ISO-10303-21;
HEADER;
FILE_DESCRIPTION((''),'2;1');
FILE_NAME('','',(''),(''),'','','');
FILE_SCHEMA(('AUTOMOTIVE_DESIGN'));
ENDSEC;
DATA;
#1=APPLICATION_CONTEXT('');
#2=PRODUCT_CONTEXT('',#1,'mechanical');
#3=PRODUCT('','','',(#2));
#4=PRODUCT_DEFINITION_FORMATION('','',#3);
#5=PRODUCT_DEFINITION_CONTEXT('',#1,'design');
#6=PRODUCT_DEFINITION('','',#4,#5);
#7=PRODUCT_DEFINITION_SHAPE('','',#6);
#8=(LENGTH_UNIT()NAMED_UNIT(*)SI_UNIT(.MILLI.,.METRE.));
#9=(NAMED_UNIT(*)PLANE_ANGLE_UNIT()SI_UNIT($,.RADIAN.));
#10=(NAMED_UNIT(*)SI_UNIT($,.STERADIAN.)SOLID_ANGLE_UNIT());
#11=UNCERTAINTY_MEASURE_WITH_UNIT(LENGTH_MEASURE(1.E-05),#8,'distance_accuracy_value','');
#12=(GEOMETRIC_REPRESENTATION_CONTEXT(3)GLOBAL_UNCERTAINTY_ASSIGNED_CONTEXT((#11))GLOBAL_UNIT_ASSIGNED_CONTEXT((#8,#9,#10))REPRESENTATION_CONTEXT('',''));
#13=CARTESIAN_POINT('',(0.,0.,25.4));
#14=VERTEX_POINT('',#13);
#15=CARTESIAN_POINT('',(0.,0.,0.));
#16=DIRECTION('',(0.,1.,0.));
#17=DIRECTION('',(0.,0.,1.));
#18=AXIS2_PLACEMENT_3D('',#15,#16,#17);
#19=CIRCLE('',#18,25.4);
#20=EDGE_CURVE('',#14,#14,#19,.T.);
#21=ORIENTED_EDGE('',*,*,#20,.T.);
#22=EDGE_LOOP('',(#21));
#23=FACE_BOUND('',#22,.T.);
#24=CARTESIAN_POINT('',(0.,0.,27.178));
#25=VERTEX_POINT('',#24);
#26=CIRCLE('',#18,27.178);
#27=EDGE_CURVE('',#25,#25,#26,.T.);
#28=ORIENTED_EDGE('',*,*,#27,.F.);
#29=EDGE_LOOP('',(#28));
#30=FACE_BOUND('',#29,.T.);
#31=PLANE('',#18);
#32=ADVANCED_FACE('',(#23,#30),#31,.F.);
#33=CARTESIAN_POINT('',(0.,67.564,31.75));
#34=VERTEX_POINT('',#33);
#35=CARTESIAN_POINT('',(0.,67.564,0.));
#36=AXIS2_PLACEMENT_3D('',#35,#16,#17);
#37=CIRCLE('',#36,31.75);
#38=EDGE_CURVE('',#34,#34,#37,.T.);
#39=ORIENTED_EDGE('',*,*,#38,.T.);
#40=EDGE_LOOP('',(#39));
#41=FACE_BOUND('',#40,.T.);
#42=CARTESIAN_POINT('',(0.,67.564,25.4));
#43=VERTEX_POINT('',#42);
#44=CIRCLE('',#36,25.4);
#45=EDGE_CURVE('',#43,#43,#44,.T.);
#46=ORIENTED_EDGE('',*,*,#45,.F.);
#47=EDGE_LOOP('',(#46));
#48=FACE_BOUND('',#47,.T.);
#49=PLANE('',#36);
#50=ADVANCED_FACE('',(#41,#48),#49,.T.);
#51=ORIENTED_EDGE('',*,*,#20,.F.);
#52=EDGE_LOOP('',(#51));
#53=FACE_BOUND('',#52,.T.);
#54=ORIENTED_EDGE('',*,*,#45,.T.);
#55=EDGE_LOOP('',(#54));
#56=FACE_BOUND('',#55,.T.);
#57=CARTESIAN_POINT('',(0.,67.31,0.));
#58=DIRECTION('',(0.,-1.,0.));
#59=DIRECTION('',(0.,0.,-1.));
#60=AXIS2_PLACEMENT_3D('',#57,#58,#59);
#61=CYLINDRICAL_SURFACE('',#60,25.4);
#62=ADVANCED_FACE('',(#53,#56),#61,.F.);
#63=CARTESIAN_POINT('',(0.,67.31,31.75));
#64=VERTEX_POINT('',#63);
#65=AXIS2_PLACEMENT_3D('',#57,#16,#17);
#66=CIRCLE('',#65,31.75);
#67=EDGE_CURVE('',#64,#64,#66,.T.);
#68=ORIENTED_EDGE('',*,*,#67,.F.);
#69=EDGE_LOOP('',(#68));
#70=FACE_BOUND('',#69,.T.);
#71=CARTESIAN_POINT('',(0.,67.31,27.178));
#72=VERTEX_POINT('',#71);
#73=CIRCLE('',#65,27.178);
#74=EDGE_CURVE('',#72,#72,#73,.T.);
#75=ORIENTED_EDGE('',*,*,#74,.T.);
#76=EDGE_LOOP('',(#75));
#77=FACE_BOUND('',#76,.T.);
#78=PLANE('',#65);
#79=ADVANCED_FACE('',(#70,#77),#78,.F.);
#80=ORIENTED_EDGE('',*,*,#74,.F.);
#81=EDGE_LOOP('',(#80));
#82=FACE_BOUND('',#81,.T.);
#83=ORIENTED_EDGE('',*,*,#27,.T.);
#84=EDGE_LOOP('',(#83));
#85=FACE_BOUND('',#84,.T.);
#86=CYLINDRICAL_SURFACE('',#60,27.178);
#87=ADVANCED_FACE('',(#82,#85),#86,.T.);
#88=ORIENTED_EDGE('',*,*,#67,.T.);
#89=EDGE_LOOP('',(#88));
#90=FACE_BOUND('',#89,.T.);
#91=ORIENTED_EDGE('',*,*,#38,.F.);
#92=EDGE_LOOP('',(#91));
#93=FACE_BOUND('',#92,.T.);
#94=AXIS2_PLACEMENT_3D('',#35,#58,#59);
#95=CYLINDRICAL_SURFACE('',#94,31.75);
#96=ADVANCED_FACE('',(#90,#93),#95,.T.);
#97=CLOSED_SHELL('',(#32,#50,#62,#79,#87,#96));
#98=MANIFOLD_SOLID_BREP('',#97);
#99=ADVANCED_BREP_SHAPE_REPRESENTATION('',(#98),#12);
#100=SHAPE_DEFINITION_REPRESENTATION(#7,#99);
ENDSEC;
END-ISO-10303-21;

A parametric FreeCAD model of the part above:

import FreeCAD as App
import Part
import Sketcher
Q = App.Units.Quantity

doc = App.newDocument("Part")
params = doc.addObject("Spreadsheet::Sheet", "Params")
for row, (alias, value) in enumerate([
    ("sketch1_diameter", "2 in"),
    ("sketch1_diameter2", "2.14 in"),
    ("pad1_length", "2.65 in"),
    ("sketch2_diameter", "2 in"),
    ("sketch2_diameter2", "2.5 in"),
    ("pad2_length", "0.01 in"),
], start=1):
    params.set(f"A{row}", alias)
    params.set(f"B{row}", "=" + value)
    params.setAlias(f"B{row}", alias)

body = doc.addObject("PartDesign::Body", "Body")

# Sketch on XZ plane
sketch1 = doc.addObject("Sketcher::SketchObject", "Sketch")
body.addObject(sketch1)
sketch1.AttachmentSupport = (doc.XZ_Plane, [""])
sketch1.MapMode = "FlatFace"
sketch1.addGeometry([
    Part.Circle(App.Vector(0, 0, 0), App.Vector(0, 0, 1), 27),
    Part.Circle(App.Vector(0, 0, 0), App.Vector(0, 0, 1), 25),
], False)
sketch1.addConstraint([
    Sketcher.Constraint("Coincident", 0, 3, -1, 1),
    Sketcher.Constraint("Coincident", 1, 3, -1, 1),
    Sketcher.Constraint("Diameter", 1, Q("2 in")),
    Sketcher.Constraint("Diameter", 0, Q("2.14 in")),
])
sketch1.setExpression("Constraints[2]", "Params.sketch1_diameter")
sketch1.setExpression("Constraints[3]", "Params.sketch1_diameter2")
pad1 = doc.addObject("PartDesign::Pad", "Pad")
body.addObject(pad1)
pad1.Profile = sketch1
pad1.setExpression("Length", "Params.pad1_length")
pad1.Reversed = True

# Sketch on XZ plane
sketch2 = doc.addObject("Sketcher::SketchObject", "Sketch001")
body.addObject(sketch2)
sketch2.AttachmentSupport = (doc.XZ_Plane, [""])
sketch2.MapMode = "FlatFace"
sketch2.AttachmentOffset = App.Placement(App.Vector(0, 0, -2.65 * 25.4), App.Rotation())
sketch2.addGeometry([
    Part.Circle(App.Vector(0, 0, 0), App.Vector(0, 0, 1), 32),
    Part.Circle(App.Vector(0, 0, 0), App.Vector(0, 0, 1), 25),
], False)
sketch2.addConstraint([
    Sketcher.Constraint("Coincident", 0, 3, -1, 1),
    Sketcher.Constraint("Coincident", 1, 3, -1, 1),
    Sketcher.Constraint("Diameter", 1, Q("2 in")),
    Sketcher.Constraint("Diameter", 0, Q("2.5 in")),
])
sketch2.setExpression("Constraints[2]", "Params.sketch2_diameter")
sketch2.setExpression("Constraints[3]", "Params.sketch2_diameter2")
pad2 = doc.addObject("PartDesign::Pad", "Pad001")
body.addObject(pad2)
pad2.Profile = sketch2
pad2.setExpression("Length", "Params.pad2_length")
pad2.Reversed = True

doc.recompute()
